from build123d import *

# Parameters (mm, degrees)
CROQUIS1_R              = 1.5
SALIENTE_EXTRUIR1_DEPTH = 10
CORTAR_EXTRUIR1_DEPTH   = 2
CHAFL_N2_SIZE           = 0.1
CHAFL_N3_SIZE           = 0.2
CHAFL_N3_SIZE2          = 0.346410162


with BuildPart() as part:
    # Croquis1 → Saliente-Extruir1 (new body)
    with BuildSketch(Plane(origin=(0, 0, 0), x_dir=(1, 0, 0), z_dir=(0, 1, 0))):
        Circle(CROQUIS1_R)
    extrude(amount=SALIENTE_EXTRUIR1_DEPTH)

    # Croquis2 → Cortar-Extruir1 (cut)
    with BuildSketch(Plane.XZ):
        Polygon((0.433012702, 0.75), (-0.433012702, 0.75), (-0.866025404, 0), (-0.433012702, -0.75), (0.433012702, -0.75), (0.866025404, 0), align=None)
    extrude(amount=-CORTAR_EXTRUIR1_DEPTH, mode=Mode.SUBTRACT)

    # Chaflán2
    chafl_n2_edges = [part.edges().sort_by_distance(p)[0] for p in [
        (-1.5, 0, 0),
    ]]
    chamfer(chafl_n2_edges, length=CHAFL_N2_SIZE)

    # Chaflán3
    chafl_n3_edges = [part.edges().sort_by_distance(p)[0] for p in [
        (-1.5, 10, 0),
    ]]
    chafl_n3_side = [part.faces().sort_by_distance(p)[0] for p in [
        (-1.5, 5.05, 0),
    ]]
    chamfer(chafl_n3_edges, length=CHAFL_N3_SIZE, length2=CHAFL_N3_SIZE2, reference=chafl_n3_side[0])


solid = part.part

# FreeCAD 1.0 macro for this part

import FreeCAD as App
import Part
import Sketcher

V = App.Vector
Q = App.Units.Quantity


def edges_at(feature, points):
    """Names of the edges that pass closest to the given points."""
    edges = feature.Shape.Edges
    near = lambda p: min(range(len(edges)), key=lambda i: edges[i].distToShape(Part.Vertex(*p))[0])
    return sorted({f"Edge{near(p) + 1}" for p in points})

doc = App.newDocument("Part")
params = doc.addObject("Spreadsheet::Sheet", "Params")
for row, (alias, value) in enumerate([
    ("sketch1_diameter", "3 mm"),
    ("pad1_length", "10 mm"),
    ("pocket1_length", "2 mm"),
    ("chamfer_size", "0.1 mm"),
    ("chamfer2_size", "0.2 mm"),
    ("chamfer2_size2", "0.34641 mm"),
], start=1):
    params.set(f"A{row}", alias)
    params.set(f"B{row}", "=" + value)
    params.setAlias(f"B{row}", alias)

body = doc.addObject("PartDesign::Body", "Body")

# Sketch on XZ plane
sketch1 = doc.addObject("Sketcher::SketchObject", "Sketch")
body.addObject(sketch1)
sketch1.AttachmentSupport = (doc.XZ_Plane, [""])
sketch1.MapMode = "FlatFace"
sketch1.addGeometry(Part.Circle(V(0, 0, 0), V(0, 0, 1), 1.5), False)
sketch1.addConstraint([
    Sketcher.Constraint("Coincident", 0, 3, -1, 1),
    Sketcher.Constraint("Diameter", 0, Q("3 mm")),
])
sketch1.setExpression("Constraints[1]", "Params.sketch1_diameter")
pad1 = doc.addObject("PartDesign::Pad", "Pad")
body.addObject(pad1)
pad1.Profile = sketch1
pad1.setExpression("Length", "Params.pad1_length")
pad1.Reversed = True

# Sketch on XZ plane
sketch2 = doc.addObject("Sketcher::SketchObject", "Sketch001")
body.addObject(sketch2)
sketch2.AttachmentSupport = (doc.XZ_Plane, [""])
sketch2.MapMode = "FlatFace"
sketch2.addGeometry([
    Part.LineSegment(V(0.433013, 0.75, 0), V(-0.433013, 0.75, 0)),  # 0
    Part.LineSegment(V(-0.433013, 0.75, 0), V(-0.866025, 0, 0)),  # 1
    Part.LineSegment(V(-0.866025, 0, 0), V(-0.433013, -0.75, 0)),  # 2
    Part.LineSegment(V(-0.433013, -0.75, 0), V(0.433013, -0.75, 0)),  # 3
    Part.LineSegment(V(0.433013, -0.75, 0), V(0.866025, 0, 0)),  # 4
    Part.LineSegment(V(0.866025, 0, 0), V(0.433013, 0.75, 0)),  # 5
], False)
sketch2.addConstraint([
    Sketcher.Constraint("Coincident", 0, 2, 1, 1),
    Sketcher.Constraint("Coincident", 1, 2, 2, 1),
    Sketcher.Constraint("Coincident", 2, 2, 3, 1),
    Sketcher.Constraint("Coincident", 3, 2, 4, 1),
    Sketcher.Constraint("Coincident", 4, 2, 5, 1),
    Sketcher.Constraint("Coincident", 5, 2, 0, 1),
    Sketcher.Constraint("Horizontal", 0),
    Sketcher.Constraint("Horizontal", 3),
    Sketcher.Constraint("Symmetric", 0, 2, 3, 2, -1, 1),
    Sketcher.Constraint("Symmetric", 1, 2, 4, 2, -1, 1),
    Sketcher.Constraint("PointOnObject", 1, 2, -1),
    Sketcher.Constraint("Parallel", 2, 5),
    Sketcher.Constraint("Vertical", 0, 2, 2, 2),
    Sketcher.Constraint("Angle", 1, Q("-120 deg")),
    Sketcher.Constraint("DistanceY", 2, 2, 0, 2, Q("1.5 mm")),
    Sketcher.Constraint("DistanceX", 0, 2, 0, 1, Q("0.866025 mm")),
])
pocket1 = doc.addObject("PartDesign::Pocket", "Pocket")
body.addObject(pocket1)
pocket1.Profile = sketch2
pocket1.setExpression("Length", "Params.pocket1_length")
doc.recompute()

chamfer = doc.addObject("PartDesign::Chamfer", "Chamfer")
body.addObject(chamfer)
chamfer.Base = (pocket1, edges_at(pocket1, [(-1.5, 0, 0)]))
chamfer.setExpression("Size", "Params.chamfer_size")
doc.recompute()

chamfer2 = doc.addObject("PartDesign::Chamfer", "Chamfer001")
body.addObject(chamfer2)
chamfer2.Base = (chamfer, edges_at(chamfer, [(-1.5, 10, 0)]))
chamfer2.ChamferType = "Two distances"
chamfer2.setExpression("Size", "Params.chamfer2_size")
chamfer2.setExpression("Size2", "Params.chamfer2_size2")

doc.recompute()
